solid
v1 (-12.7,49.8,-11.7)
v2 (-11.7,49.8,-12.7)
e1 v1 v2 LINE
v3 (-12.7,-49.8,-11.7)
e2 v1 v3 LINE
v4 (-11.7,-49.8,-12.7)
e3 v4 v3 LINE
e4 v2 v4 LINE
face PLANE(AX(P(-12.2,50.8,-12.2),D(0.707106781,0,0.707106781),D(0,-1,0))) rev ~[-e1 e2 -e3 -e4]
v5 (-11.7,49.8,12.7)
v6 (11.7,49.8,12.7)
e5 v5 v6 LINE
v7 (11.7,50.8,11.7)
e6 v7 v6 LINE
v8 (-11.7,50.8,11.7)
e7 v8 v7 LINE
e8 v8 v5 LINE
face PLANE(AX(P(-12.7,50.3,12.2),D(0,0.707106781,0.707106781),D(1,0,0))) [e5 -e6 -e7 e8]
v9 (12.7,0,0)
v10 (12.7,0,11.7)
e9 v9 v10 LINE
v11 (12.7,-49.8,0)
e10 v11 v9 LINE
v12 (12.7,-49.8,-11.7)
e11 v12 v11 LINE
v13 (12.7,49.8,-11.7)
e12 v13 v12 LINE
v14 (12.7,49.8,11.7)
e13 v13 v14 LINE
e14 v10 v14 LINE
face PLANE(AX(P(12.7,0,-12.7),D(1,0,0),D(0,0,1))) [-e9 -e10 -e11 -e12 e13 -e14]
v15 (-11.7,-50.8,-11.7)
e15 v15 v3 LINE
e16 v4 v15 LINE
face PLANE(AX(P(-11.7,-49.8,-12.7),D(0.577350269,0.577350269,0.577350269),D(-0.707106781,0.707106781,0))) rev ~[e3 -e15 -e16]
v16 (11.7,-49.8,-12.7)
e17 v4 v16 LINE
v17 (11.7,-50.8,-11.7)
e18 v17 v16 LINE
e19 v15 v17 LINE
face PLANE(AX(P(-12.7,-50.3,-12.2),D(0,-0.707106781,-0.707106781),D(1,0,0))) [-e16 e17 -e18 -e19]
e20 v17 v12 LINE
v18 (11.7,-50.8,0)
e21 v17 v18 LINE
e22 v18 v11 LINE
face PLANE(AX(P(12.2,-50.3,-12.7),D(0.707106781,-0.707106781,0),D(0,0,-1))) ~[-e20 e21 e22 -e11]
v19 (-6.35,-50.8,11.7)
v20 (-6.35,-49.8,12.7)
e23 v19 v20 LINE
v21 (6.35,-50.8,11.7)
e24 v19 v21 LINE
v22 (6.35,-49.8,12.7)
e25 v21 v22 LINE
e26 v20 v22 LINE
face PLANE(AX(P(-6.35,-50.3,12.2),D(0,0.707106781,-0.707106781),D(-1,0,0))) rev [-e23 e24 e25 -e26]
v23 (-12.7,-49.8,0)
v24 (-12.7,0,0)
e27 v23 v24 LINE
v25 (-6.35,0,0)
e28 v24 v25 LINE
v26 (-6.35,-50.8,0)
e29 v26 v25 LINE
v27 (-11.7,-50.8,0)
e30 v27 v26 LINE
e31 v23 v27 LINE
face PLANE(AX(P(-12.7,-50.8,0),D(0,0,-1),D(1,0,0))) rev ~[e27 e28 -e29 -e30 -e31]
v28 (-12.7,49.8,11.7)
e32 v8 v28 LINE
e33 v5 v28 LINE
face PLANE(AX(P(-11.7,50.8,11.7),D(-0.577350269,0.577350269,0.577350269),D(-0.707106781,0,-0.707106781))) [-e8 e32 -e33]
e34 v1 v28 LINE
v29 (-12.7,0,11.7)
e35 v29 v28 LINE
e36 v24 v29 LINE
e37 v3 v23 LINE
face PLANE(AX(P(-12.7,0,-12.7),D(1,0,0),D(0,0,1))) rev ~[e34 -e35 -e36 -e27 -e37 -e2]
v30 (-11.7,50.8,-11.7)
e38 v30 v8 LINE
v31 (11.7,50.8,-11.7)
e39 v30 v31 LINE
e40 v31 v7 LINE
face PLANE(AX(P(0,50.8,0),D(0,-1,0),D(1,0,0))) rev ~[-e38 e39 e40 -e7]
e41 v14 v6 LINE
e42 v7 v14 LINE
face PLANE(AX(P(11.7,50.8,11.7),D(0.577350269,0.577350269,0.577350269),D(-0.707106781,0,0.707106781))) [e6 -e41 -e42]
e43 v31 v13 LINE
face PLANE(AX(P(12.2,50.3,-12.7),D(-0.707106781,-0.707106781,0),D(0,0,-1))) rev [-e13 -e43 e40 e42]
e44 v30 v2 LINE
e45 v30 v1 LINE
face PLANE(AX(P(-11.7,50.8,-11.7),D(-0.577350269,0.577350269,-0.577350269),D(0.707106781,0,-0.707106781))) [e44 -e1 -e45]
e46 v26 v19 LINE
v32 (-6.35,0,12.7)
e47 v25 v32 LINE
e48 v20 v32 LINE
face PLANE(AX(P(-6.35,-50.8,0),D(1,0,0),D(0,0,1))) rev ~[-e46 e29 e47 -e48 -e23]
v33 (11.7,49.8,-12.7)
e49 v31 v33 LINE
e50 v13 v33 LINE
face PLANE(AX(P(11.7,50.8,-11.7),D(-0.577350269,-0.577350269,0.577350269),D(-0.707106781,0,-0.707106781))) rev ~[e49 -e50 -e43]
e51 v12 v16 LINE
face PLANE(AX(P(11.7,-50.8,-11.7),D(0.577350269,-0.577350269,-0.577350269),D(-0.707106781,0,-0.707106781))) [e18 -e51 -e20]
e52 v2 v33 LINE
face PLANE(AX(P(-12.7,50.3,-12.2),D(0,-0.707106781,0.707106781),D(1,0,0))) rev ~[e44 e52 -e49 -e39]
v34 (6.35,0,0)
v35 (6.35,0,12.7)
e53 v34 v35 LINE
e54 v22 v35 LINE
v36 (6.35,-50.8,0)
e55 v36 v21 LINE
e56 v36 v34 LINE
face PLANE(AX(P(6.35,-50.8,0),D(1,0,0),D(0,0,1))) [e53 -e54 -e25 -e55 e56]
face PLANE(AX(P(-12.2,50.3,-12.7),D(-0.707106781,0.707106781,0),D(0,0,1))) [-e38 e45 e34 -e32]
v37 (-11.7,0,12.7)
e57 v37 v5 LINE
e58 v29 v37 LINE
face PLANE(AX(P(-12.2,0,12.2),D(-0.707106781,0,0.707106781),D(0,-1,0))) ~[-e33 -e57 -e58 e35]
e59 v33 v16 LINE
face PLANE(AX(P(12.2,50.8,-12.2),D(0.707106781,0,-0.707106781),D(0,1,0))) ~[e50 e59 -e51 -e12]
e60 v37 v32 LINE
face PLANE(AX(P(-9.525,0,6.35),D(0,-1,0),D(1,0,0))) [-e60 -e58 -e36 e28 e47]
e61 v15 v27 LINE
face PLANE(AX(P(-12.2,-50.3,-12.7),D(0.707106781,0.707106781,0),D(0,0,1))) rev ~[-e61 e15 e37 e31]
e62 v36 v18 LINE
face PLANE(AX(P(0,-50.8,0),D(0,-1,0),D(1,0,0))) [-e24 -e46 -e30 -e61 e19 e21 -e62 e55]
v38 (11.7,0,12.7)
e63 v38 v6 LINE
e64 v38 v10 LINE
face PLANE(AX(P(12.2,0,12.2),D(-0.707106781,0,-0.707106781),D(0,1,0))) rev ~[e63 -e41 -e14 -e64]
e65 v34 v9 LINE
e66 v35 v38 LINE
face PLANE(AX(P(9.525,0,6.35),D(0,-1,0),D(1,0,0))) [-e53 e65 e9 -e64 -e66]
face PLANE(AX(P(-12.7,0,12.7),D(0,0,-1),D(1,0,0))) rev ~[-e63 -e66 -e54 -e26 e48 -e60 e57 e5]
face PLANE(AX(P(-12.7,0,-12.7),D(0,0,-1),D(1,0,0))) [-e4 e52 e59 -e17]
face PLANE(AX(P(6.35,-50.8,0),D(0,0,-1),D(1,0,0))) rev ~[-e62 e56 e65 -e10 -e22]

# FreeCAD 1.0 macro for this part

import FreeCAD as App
import Part
import Sketcher
from FreeCAD import Vector
Q = App.Units.Quantity


def edges_at(feature, points):
    """Names of the edges that pass closest to the given points."""
    edges = feature.Shape.Edges
    near = lambda p: min(range(len(edges)), key=lambda i: edges[i].distToShape(Part.Vertex(*p))[0])
    return sorted({f"Edge{near(p) + 1}" for p in points})

doc = App.newDocument("Part")
body = doc.addObject("PartDesign::Body", "Body")

sketch1 = body.newObject("Sketcher::SketchObject", "Sketch")
sketch1.AttachmentSupport = (doc.getObject("XZ_Plane"), [""])
sketch1.MapMode = "FlatFace"
sketch1.addGeometry([
    Part.LineSegment(Vector(-12.7, 12.7, 0), Vector(-12.7, -12.7, 0)),
    Part.LineSegment(Vector(-12.7, -12.7, 0), Vector(12.7, -12.7, 0)),
    Part.LineSegment(Vector(12.7, -12.7, 0), Vector(12.7, 12.7, 0)),
    Part.LineSegment(Vector(12.7, 12.7, 0), Vector(-12.7, 12.7, 0)),
], False)
sketch1.addConstraint([
    Sketcher.Constraint("Coincident", 0, 2, 1, 1),
    Sketcher.Constraint("Coincident", 1, 2, 2, 1),
    Sketcher.Constraint("Coincident", 2, 2, 3, 1),
    Sketcher.Constraint("Coincident", 3, 2, 0, 1),
    Sketcher.Constraint("Vertical", 0),
    Sketcher.Constraint("Horizontal", 1),
    Sketcher.Constraint("Vertical", 2),
    Sketcher.Constraint("Horizontal", 3),
    Sketcher.Constraint("Symmetric", 0, 2, 2, 2, -1, 1),
    Sketcher.Constraint("Equal", 3, 0),
    Sketcher.Constraint("DistanceX", 1, 1, 1, 2, Q("1 in")),
])
pad1 = body.newObject("PartDesign::Pad", "Pad")
pad1.Profile = sketch1
pad1.Length = Q("4 in")
pad1.Midplane = True

sketch2 = body.newObject("Sketcher::SketchObject", "Sketch001")
sketch2.AttachmentSupport = (doc.getObject("XZ_Plane"), [""])
sketch2.MapMode = "FlatFace"
sketch2.AttachmentOffset = App.Placement(Vector(0, 0, 2 * 25.4), App.Rotation())
sketch2.addGeometry([
    Part.LineSegment(Vector(-12.7, 12.7, 0), Vector(-12.7, 0, 0)),
    Part.LineSegment(Vector(-12.7, 0, 0), Vector(-6.35, 0, 0)),
    Part.LineSegment(Vector(-6.35, 0, 0), Vector(-6.35, 12.7, 0)),
    Part.LineSegment(Vector(-6.35, 12.7, 0), Vector(-12.7, 12.7, 0)),
    Part.LineSegment(Vector(6.35, 12.7, 0), Vector(6.35, 0, 0)),
    Part.LineSegment(Vector(6.35, 0, 0), Vector(12.7, 0, 0)),
    Part.LineSegment(Vector(12.7, 0, 0), Vector(12.7, 12.7, 0)),
    Part.LineSegment(Vector(12.7, 12.7, 0), Vector(6.35, 12.7, 0)),
], False)
sketch2.addConstraint([
    Sketcher.Constraint("Coincident", 0, 2, 1, 1),
    Sketcher.Constraint("Coincident", 1, 2, 2, 1),
    Sketcher.Constraint("Coincident", 2, 2, 3, 1),
    Sketcher.Constraint("Coincident", 3, 2, 0, 1),
    Sketcher.Constraint("Coincident", 4, 2, 5, 1),
    Sketcher.Constraint("Coincident", 5, 2, 6, 1),
    Sketcher.Constraint("Coincident", 6, 2, 7, 1),
    Sketcher.Constraint("Coincident", 7, 2, 4, 1),
    Sketcher.Constraint("Vertical", 0),
    Sketcher.Constraint("Horizontal", 1),
    Sketcher.Constraint("Vertical", 2),
    Sketcher.Constraint("Horizontal", 3),
    Sketcher.Constraint("Vertical", 4),
    Sketcher.Constraint("Horizontal", 5),
    Sketcher.Constraint("Vertical", 6),
    Sketcher.Constraint("Horizontal", 7),
    Sketcher.Constraint("Symmetric", 1, 2, 4, 2, -1, 1),
    Sketcher.Constraint("Symmetric", 0, 2, 5, 2, -2),
    Sketcher.Constraint("Horizontal", 3, 2, 6, 2),
    Sketcher.Constraint("DistanceY", 0, 2, 0, 1, Q("0.5 in")),
    Sketcher.Constraint("DistanceX", 0, 2, 5, 2, Q("1 in")),
    Sketcher.Constraint("DistanceX", 1, 1, 1, 2, Q("0.25 in")),
])
pocket1 = body.newObject("PartDesign::Pocket", "Pocket")
pocket1.Profile = sketch2
pocket1.Length = Q("2 in")
doc.recompute()

chamfer = body.newObject("PartDesign::Chamfer", "Chamfer")
chamfer.Base = (pocket1, edges_at(pocket1, [
    (12.7, 25.4, 12.7),
    (12.7, 0, -12.7),
    (12.7, 50.8, 0),
    (12.7, -50.8, -6.35),
    (0, -50.8, 12.7),
    (-12.7, -50.8, -6.35),
    (-12.7, 25.4, 12.7),
    (0, 50.8, 12.7),
    (0, -50.8, -12.7),
    (-12.7, 0, -12.7),
    (-12.7, 50.8, 0),
    (0, 50.8, -12.7),
]))
chamfer.Size = 1

doc.recompute()
